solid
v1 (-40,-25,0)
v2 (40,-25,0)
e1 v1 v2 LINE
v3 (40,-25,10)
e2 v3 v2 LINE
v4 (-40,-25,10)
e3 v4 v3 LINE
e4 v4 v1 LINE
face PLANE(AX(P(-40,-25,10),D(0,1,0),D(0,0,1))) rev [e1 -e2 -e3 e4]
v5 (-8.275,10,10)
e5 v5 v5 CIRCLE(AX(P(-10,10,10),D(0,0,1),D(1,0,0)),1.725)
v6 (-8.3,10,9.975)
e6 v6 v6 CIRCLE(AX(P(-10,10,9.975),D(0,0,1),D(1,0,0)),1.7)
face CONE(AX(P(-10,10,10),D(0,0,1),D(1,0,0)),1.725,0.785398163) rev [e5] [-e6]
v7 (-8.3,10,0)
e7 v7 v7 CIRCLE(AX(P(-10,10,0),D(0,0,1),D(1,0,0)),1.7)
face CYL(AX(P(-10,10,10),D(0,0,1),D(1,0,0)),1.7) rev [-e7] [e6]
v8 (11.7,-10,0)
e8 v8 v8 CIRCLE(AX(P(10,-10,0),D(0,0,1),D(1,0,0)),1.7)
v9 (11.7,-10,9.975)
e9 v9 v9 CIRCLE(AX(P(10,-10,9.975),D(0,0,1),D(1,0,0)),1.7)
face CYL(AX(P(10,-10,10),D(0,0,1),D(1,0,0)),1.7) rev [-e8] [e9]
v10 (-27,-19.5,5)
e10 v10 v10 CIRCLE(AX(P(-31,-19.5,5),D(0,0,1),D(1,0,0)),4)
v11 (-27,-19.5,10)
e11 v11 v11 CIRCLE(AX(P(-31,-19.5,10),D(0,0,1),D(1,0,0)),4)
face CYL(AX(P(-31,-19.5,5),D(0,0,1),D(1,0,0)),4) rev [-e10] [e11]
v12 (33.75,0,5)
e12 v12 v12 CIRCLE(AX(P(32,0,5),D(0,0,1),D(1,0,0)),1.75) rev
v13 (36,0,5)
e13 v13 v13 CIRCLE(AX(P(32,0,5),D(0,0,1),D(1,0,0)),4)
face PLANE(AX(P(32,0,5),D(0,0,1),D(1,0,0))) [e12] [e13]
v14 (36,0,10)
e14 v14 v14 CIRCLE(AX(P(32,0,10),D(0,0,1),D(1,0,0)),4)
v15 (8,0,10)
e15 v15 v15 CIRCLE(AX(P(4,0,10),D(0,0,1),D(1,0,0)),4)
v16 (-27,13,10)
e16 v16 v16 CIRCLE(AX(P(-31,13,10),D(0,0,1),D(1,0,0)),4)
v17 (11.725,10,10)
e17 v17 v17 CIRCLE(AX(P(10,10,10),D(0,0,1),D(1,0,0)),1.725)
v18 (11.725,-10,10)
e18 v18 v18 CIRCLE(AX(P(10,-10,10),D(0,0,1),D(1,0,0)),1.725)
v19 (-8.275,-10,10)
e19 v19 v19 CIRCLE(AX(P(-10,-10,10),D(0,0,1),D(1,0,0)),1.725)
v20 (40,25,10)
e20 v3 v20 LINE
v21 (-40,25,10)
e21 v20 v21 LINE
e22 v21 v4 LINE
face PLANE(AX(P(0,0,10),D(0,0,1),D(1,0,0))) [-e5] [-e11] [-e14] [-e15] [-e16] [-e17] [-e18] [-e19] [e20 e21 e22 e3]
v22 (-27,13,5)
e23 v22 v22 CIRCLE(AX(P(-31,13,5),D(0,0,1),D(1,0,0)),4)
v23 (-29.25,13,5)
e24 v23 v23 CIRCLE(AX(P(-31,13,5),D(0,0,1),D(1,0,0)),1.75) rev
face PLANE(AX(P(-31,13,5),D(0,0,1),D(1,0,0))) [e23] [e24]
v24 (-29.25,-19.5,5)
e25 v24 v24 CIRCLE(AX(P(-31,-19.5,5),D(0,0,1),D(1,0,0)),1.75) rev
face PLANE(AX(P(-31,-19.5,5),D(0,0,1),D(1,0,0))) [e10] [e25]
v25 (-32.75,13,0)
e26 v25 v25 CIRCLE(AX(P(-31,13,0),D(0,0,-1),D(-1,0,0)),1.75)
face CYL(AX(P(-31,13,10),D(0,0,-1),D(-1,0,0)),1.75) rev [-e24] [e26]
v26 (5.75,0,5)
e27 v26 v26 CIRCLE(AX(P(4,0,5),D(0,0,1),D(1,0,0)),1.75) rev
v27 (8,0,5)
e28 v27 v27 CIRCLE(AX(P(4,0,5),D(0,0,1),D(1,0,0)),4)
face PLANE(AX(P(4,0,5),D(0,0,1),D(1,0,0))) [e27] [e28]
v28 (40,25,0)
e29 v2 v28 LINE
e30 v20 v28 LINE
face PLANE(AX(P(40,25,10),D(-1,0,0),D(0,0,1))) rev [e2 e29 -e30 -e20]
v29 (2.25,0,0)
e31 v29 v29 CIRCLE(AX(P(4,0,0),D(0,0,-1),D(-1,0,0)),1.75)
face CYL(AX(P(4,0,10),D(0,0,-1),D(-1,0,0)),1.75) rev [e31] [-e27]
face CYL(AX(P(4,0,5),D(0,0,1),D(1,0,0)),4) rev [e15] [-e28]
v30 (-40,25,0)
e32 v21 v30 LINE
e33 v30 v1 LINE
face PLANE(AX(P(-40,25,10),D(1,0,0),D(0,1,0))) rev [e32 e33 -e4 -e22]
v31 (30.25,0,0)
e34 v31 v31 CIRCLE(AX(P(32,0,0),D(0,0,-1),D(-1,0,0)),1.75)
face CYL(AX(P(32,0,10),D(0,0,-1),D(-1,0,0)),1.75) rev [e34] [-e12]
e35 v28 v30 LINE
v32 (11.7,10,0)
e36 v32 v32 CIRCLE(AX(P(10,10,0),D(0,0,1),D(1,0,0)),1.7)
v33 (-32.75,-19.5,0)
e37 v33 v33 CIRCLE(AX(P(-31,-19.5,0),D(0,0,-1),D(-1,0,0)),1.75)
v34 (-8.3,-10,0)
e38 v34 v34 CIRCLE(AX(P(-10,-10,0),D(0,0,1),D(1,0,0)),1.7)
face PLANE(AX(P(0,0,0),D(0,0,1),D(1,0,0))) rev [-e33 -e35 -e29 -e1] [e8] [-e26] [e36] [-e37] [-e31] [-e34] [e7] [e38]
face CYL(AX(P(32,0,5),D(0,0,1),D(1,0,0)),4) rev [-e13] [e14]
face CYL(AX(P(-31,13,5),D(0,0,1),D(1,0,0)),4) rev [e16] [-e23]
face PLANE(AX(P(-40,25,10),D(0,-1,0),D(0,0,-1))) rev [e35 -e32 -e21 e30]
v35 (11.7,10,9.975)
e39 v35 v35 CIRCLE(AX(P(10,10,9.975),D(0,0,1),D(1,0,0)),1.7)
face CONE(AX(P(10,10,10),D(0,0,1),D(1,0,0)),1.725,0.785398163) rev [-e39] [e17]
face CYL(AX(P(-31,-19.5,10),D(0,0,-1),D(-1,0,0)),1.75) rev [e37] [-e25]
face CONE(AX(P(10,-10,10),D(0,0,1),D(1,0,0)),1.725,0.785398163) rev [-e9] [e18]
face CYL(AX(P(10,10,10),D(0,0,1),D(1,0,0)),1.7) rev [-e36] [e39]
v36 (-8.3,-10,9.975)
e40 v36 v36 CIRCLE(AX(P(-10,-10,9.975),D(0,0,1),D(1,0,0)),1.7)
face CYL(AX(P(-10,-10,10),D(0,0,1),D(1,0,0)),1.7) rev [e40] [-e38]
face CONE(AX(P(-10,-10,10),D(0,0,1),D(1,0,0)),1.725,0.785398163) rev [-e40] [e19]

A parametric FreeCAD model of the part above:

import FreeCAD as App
import Part
import Sketcher
from FreeCAD import Vector
Q = App.Units.Quantity


def add_polygon(sketch, points):
    """Adds a closed chain of lines whose ends are joined by coincident constraints."""
    first, n = sketch.GeometryCount, len(points)
    for a, b in zip(points, points[1:] + points[:1]):
        sketch.addGeometry(Part.LineSegment(App.Vector(*a, 0), App.Vector(*b, 0)), False)
    for i in range(n):
        sketch.addConstraint(Sketcher.Constraint("Coincident", first + i, 2, first + (i + 1) % n, 1))

doc = App.newDocument("Part")
body = doc.addObject("PartDesign::Body", "Body")

sketch1 = body.newObject("Sketcher::SketchObject", "Sketch")
sketch1.AttachmentSupport = (doc.getObject("XY_Plane"), [""])
sketch1.MapMode = "FlatFace"
add_polygon(sketch1, [(-40, 25), (-40, -25), (40, -25), (40, 25)])
sketch1.addConstraint([
    Sketcher.Constraint("Vertical", 0),
    Sketcher.Constraint("Horizontal", 1),
    Sketcher.Constraint("Vertical", 2),
    Sketcher.Constraint("Horizontal", 3),
    Sketcher.Constraint("Symmetric", 0, 2, 2, 2, -1, 1),
    Sketcher.Constraint("DistanceX", 1, 1, 1, 2, Q("80 mm")),
    Sketcher.Constraint("DistanceY", 0, 2, 0, 1, Q("50 mm")),
])
pad1 = body.newObject("PartDesign::Pad", "Pad")
pad1.Profile = sketch1
pad1.Length = 10

sketch2 = body.newObject("Sketcher::SketchObject", "Sketch001")
sketch2.AttachmentSupport = (doc.getObject("XY_Plane"), [""])
sketch2.MapMode = "FlatFace"
sketch2.addGeometry([
    Part.Circle(Vector(32, 0, 0), Vector(0, 0, 1), 1.8),
    Part.Circle(Vector(4, 0, 0), Vector(0, 0, 1), 1.8),
    Part.Circle(Vector(-31, 13, 0), Vector(0, 0, 1), 1.8),
    Part.Circle(Vector(-31, -19.5, 0), Vector(0, 0, 1), 1.8),
], False)
sketch2.addConstraint([
    Sketcher.Constraint("Equal", 0, 1),
    Sketcher.Constraint("Equal", 1, 2),
    Sketcher.Constraint("Equal", 2, 3),
    Sketcher.Constraint("PointOnObject", 0, 3, -1),
    Sketcher.Constraint("PointOnObject", 1, 3, -1),
    Sketcher.Constraint("Vertical", 2, 3, 3, 3),
    Sketcher.Constraint("Diameter", 0, Q("3.5 mm")),
    Sketcher.Constraint("DistanceX", -1, 1, 0, 3, Q("32 mm")),
    Sketcher.Constraint("DistanceX", -1, 1, 1, 3, Q("4 mm")),
    Sketcher.Constraint("DistanceX", 2, 3, -1, 1, Q("31 mm")),
    Sketcher.Constraint("DistanceY", -1, 1, 2, 3, Q("13 mm")),
    Sketcher.Constraint("DistanceY", 3, 3, -1, 1, Q("19.5 mm")),
])
pocket1 = body.newObject("PartDesign::Pocket", "Pocket")
pocket1.Profile = sketch2
pocket1.Type = "ThroughAll"
pocket1.Reversed = True

sketch3 = body.newObject("Sketcher::SketchObject", "Sketch002")
sketch3.AttachmentSupport = (doc.getObject("XY_Plane"), [""])
sketch3.MapMode = "FlatFace"
sketch3.AttachmentOffset = App.Placement(Vector(0, 0, 10), App.Rotation())
sketch3.addGeometry([
    Part.Circle(Vector(-31, 13, 0), Vector(0, 0, 1), 4),
    Part.Circle(Vector(4, 0, 0), Vector(0, 0, 1), 4),
    Part.Circle(Vector(32, 0, 0), Vector(0, 0, 1), 4),
    Part.Circle(Vector(-31, -19.5, 0), Vector(0, 0, 1), 4),
], False)
sketch3.addConstraint([
    Sketcher.Constraint("Equal", 0, 1),
    Sketcher.Constraint("Equal", 1, 2),
    Sketcher.Constraint("Equal", 2, 3),
    Sketcher.Constraint("PointOnObject", 1, 3, -1),
    Sketcher.Constraint("PointOnObject", 2, 3, -1),
    Sketcher.Constraint("Vertical", 0, 3, 3, 3),
    Sketcher.Constraint("Diameter", 0, Q("8 mm")),
    Sketcher.Constraint("DistanceX", 0, 3, -1, 1, Q("31 mm")),
    Sketcher.Constraint("DistanceY", -1, 1, 0, 3, Q("13 mm")),
    Sketcher.Constraint("DistanceX", -1, 1, 1, 3, Q("4 mm")),
    Sketcher.Constraint("DistanceX", -1, 1, 2, 3, Q("32 mm")),
    Sketcher.Constraint("DistanceY", 3, 3, -1, 1, Q("19.5 mm")),
])
pocket2 = body.newObject("PartDesign::Pocket", "Pocket001")
pocket2.Profile = sketch3
pocket2.Length = 5

sketch4 = body.newObject("Sketcher::SketchObject", "Sketch003")
sketch4.AttachmentSupport = (doc.getObject("XY_Plane"), [""])
sketch4.MapMode = "FlatFace"
sketch4.AttachmentOffset = App.Placement(Vector(0, 0, 10), App.Rotation())
sketch4.addGeometry([
    Part.Circle(Vector(-10, 10, 0), Vector(0, 0, 1), 1.7),
    Part.Circle(Vector(10, 10, 0), Vector(0, 0, 1), 1.7),
    Part.Circle(Vector(10, -10, 0), Vector(0, 0, 1), 1.7),
    Part.Circle(Vector(-10, -10, 0), Vector(0, 0, 1), 1.7),
], False)
sketch4.addConstraint([
    Sketcher.Constraint("Equal", 0, 1),
    Sketcher.Constraint("Equal", 1, 2),
    Sketcher.Constraint("Equal", 2, 3),
    Sketcher.Constraint("Symmetric", 0, 3, 2, 3, -1, 1),
    Sketcher.Constraint("Symmetric", 1, 3, 3, 3, -1, 1),
    Sketcher.Constraint("Symmetric", 0, 3, 1, 3, -2),
    Sketcher.Constraint("Diameter", 0, Q("3.4 mm")),
    Sketcher.Constraint("DistanceX", 0, 3, -1, 1, Q("10 mm")),
    Sketcher.Constraint("DistanceY", -1, 1, 0, 3, Q("10 mm")),
])
doc.recompute()
hole = body.newObject("PartDesign::Hole", "Hole")
hole.Profile = sketch4
hole.ThreadType = "None"
hole.Diameter = 3.4
hole.DepthType = "ThroughAll"
hole.HoleCutType = "Countersink"
hole.HoleCutDiameter = 3.45
hole.HoleCutCountersinkAngle = 90

doc.recompute()
